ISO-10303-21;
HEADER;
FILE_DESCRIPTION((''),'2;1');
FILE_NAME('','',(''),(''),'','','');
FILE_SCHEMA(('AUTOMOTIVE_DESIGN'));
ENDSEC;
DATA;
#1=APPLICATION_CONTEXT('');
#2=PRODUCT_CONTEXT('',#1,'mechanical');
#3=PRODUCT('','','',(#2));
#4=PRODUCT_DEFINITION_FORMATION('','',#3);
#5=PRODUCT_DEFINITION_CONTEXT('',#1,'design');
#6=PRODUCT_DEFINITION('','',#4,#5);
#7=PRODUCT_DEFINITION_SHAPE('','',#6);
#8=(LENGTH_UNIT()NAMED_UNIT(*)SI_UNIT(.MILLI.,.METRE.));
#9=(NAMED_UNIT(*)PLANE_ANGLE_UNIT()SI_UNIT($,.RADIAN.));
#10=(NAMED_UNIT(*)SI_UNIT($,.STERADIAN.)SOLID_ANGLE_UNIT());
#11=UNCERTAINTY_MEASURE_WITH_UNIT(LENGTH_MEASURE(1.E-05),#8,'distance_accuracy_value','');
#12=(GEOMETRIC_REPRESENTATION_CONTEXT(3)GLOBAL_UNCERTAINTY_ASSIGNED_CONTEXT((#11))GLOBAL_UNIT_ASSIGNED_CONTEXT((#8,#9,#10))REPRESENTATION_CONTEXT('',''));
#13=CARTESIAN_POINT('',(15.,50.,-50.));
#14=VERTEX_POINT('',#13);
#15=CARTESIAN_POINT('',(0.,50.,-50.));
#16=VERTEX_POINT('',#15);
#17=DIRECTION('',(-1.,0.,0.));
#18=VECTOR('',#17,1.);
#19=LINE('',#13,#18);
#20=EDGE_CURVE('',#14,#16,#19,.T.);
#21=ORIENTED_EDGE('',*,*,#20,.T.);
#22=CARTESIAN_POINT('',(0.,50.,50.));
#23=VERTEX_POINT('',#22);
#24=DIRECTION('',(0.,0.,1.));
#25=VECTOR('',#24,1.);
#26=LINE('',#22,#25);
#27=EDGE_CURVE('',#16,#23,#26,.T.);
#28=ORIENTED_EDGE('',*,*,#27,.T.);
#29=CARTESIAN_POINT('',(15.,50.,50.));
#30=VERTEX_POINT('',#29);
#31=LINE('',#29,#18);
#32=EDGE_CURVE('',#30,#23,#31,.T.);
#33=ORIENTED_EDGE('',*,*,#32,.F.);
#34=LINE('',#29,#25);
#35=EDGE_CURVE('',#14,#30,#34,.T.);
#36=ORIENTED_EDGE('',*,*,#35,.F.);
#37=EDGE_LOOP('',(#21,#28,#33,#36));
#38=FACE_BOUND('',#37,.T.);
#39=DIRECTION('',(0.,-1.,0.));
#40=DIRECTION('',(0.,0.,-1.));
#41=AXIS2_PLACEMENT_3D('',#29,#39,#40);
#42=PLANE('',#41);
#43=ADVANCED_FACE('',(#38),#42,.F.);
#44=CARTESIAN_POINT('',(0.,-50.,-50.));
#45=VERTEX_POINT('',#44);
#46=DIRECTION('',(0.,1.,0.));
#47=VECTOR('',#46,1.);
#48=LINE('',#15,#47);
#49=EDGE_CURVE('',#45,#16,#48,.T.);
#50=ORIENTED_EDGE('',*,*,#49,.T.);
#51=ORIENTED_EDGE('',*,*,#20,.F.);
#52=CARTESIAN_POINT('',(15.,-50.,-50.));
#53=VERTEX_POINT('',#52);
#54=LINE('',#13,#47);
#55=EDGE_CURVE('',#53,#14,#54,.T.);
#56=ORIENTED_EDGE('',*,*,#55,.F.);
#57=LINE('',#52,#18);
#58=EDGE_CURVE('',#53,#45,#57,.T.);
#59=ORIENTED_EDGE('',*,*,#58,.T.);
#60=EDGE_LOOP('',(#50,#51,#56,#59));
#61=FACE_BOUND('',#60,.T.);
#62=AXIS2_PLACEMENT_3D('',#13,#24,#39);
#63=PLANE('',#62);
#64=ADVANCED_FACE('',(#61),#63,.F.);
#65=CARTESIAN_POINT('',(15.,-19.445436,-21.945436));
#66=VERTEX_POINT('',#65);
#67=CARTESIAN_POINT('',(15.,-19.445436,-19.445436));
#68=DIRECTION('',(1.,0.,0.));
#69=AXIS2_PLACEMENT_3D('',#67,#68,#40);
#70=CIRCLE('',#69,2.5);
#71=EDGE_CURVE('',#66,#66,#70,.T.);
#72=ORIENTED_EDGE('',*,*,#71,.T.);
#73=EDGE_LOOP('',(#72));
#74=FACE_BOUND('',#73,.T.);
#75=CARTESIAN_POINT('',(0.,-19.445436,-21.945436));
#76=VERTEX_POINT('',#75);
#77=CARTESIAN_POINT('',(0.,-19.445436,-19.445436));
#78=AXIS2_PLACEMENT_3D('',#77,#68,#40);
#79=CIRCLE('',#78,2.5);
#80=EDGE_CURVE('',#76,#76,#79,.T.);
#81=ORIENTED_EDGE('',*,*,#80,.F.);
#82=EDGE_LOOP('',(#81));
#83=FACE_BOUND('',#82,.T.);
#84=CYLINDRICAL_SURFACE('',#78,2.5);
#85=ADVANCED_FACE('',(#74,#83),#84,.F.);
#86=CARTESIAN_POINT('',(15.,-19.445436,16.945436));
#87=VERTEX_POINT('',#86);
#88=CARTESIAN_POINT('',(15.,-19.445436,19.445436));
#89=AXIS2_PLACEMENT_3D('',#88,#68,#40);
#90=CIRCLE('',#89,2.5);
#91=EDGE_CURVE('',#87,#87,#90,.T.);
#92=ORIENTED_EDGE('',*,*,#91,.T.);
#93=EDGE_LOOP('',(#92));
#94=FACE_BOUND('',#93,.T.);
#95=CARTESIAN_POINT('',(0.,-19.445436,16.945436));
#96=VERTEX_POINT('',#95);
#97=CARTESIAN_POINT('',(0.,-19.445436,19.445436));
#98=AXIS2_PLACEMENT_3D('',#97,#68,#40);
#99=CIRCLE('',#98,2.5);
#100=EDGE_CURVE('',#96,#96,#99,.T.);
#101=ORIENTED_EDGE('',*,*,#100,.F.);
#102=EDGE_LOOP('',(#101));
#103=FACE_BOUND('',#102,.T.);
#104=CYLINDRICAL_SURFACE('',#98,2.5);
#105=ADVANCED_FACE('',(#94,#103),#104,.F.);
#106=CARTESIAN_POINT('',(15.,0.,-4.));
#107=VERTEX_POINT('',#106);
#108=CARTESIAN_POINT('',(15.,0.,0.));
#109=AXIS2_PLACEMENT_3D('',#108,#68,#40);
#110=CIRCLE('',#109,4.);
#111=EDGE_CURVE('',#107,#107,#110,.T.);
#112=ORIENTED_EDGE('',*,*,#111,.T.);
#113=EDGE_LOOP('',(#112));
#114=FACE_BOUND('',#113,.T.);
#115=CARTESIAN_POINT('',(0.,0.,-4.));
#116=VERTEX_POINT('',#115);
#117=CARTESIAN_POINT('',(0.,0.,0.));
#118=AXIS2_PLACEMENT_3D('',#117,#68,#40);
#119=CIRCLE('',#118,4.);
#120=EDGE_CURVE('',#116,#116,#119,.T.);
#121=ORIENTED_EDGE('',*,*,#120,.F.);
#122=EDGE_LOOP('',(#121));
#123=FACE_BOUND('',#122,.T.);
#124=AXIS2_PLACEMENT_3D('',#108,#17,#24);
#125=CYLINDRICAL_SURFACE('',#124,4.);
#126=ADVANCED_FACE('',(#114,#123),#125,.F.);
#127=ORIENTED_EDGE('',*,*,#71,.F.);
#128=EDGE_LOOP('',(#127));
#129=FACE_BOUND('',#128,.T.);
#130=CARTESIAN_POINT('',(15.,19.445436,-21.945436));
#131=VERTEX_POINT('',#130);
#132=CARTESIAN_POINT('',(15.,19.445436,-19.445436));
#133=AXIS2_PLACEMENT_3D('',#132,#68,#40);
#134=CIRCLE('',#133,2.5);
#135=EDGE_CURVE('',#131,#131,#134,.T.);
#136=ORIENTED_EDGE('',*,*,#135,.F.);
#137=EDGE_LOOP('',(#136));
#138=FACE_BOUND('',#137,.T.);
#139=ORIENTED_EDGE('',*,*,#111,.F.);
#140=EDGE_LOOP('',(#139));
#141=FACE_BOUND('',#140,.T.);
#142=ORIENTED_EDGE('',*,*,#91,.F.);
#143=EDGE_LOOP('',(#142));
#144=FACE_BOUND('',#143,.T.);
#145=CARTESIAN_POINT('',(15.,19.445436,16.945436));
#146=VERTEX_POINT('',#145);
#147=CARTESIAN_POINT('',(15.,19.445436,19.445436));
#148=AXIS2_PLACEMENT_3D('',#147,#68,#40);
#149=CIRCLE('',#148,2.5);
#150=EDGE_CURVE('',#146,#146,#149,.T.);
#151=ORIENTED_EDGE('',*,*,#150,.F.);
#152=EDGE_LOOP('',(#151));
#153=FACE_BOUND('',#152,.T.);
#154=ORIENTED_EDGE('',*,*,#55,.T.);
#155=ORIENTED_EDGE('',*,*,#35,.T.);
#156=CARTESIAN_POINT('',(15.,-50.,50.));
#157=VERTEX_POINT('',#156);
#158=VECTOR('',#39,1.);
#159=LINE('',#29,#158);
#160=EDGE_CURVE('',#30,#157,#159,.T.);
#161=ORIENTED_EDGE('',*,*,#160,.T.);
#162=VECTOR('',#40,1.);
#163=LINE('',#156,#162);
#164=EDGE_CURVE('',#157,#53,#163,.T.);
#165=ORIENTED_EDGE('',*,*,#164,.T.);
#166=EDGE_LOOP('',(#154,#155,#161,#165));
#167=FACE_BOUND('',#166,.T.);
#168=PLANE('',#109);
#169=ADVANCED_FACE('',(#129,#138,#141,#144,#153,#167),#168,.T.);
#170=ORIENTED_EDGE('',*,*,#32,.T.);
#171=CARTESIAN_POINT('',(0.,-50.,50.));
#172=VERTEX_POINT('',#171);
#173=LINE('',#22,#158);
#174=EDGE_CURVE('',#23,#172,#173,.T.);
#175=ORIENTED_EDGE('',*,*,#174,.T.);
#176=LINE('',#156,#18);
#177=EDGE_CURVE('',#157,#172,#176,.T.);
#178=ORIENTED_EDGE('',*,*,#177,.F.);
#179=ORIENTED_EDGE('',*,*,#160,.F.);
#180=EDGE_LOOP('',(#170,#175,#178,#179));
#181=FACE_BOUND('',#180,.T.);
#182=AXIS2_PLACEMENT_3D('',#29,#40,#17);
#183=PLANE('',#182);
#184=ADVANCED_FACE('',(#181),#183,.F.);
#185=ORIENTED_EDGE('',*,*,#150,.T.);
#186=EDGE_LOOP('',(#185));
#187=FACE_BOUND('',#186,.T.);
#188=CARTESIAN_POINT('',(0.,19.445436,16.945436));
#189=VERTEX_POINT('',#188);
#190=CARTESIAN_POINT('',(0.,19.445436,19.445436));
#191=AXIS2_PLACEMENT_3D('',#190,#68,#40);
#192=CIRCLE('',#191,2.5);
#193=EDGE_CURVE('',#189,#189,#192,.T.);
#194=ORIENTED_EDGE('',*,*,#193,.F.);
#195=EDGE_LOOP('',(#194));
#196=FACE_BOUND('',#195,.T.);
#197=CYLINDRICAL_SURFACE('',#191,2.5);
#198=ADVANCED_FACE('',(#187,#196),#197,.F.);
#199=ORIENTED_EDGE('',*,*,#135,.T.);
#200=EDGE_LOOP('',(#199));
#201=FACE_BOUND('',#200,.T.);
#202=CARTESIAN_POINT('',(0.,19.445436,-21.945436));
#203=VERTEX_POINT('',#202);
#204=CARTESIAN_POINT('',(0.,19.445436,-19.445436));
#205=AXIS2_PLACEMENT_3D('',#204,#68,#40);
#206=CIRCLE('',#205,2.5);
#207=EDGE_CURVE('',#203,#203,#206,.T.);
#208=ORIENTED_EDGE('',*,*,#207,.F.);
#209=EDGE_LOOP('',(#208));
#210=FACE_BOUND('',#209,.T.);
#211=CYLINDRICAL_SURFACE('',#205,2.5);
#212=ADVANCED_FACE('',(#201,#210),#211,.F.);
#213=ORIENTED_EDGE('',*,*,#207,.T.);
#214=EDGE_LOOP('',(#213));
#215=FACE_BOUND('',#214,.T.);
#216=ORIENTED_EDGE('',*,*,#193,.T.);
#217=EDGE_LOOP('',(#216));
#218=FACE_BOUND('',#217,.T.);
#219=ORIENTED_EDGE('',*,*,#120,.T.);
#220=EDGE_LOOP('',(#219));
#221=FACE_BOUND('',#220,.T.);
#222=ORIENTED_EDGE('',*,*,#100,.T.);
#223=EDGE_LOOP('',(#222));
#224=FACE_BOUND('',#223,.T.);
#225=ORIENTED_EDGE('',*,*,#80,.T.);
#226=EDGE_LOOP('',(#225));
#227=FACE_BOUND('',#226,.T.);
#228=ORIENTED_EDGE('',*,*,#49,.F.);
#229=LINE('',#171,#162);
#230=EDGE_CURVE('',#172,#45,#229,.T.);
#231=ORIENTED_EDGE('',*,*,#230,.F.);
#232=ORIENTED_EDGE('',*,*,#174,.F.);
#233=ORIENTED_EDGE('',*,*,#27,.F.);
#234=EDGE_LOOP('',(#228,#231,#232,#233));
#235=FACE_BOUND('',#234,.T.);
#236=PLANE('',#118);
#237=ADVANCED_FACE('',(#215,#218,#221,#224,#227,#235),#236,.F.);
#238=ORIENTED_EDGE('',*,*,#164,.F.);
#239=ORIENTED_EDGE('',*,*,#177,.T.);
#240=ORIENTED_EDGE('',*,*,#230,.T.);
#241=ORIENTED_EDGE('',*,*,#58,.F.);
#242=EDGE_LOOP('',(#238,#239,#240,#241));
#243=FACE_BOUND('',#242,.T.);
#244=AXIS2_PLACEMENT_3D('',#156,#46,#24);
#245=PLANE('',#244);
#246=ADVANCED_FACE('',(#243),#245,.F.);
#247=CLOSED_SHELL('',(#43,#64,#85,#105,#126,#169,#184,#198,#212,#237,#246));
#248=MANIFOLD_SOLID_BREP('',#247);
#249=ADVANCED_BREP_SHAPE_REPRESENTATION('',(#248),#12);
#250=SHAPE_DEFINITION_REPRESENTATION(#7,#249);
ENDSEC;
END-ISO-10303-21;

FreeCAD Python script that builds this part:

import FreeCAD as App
import Part
import Sketcher

V = App.Vector


def add_polygon(sketch, points):
    """Adds a closed chain of lines whose ends are joined by coincident constraints."""
    first, n = sketch.GeometryCount, len(points)
    for a, b in zip(points, points[1:] + points[:1]):
        sketch.addGeometry(Part.LineSegment(App.Vector(*a, 0), App.Vector(*b, 0)), False)
    for i in range(n):
        sketch.addConstraint(Sketcher.Constraint("Coincident", first + i, 2, first + (i + 1) % n, 1))

doc = App.newDocument("Part")
params = doc.addObject("Spreadsheet::Sheet", "Params")
for row, (alias, value) in enumerate([
    ("sketch1_diameter", "8 mm"),
    ("sketch1_width", "100 mm"),
    ("pad1_length", "15 mm"),
    ("sketch2_diameter", "5 mm"),
    ("pocket1_length", "15 mm"),
], start=1):
    params.set(f"A{row}", alias)
    params.set(f"B{row}", "=" + value)
    params.setAlias(f"B{row}", alias)

body = doc.addObject("PartDesign::Body", "Body")

sketch1 = body.newObject("Sketcher::SketchObject", "Sketch")
sketch1.AttachmentSupport = (doc.getObject("YZ_Plane"), [""])
sketch1.MapMode = "FlatFace"
add_polygon(sketch1, [(50, 50), (-50, 50), (-50, -50), (50, -50)])
sketch1.addGeometry(Part.Circle(V(0, 0, 0), V(0, 0, 1), 4), False)
sketch1.addConstraint([
    Sketcher.Constraint("Horizontal", 0),
    Sketcher.Constraint("Vertical", 1),
    Sketcher.Constraint("Horizontal", 2),
    Sketcher.Constraint("Vertical", 3),
    Sketcher.Constraint("Coincident", 4, 3, -1, 1),
    Sketcher.Constraint("Symmetric", 0, 2, 2, 2, -1, 1),
    Sketcher.Constraint("Equal", 2, 1),
    Sketcher.Constraint("Diameter", 4, 8.0),
    Sketcher.Constraint("DistanceX", 0, 2, 0, 1, 100.0),
])
sketch1.setExpression("Constraints[11]", "Params.sketch1_diameter")
sketch1.setExpression("Constraints[12]", "Params.sketch1_width")
pad1 = body.newObject("PartDesign::Pad", "Pad")
pad1.Profile = sketch1
pad1.setExpression("Length", "Params.pad1_length")

sketch2 = body.newObject("Sketcher::SketchObject", "Sketch001")
sketch2.AttachmentSupport = (doc.getObject("YZ_Plane"), [""])
sketch2.MapMode = "FlatFace"
sketch2.AttachmentOffset = App.Placement(V(0, 0, 15), App.Rotation())
sketch2.addGeometry([
    Part.Circle(V(19.4, 19.4, 0), V(0, 0, 1), 2.5),
    Part.Circle(V(19.4, -19.4, 0), V(0, 0, 1), 2.5),
    Part.Circle(V(-19.4, -19.4, 0), V(0, 0, 1), 2.5),
    Part.Circle(V(-19.4, 19.4, 0), V(0, 0, 1), 2.5),
], False)
sketch2.addConstraint([
    Sketcher.Constraint("Equal", 0, 1),
    Sketcher.Constraint("Equal", 1, 2),
    Sketcher.Constraint("Equal", 2, 3),
    Sketcher.Constraint("Symmetric", 0, 3, 2, 3, -1, 1),
    Sketcher.Constraint("Symmetric", 1, 3, 3, 3, -1, 1),
    Sketcher.Constraint("Symmetric", 1, 3, 2, 3, -2),
    Sketcher.Constraint("Diameter", 0, 5.0),
    Sketcher.Constraint("DistanceX", -1, 1, 0, 3, 19.445436),
    Sketcher.Constraint("DistanceY", -1, 1, 0, 3, 19.445436),
])
sketch2.setExpression("Constraints[6]", "Params.sketch2_diameter")
pocket1 = body.newObject("PartDesign::Pocket", "Pocket")
pocket1.Profile = sketch2
pocket1.setExpression("Length", "Params.pocket1_length")

doc.recompute()
